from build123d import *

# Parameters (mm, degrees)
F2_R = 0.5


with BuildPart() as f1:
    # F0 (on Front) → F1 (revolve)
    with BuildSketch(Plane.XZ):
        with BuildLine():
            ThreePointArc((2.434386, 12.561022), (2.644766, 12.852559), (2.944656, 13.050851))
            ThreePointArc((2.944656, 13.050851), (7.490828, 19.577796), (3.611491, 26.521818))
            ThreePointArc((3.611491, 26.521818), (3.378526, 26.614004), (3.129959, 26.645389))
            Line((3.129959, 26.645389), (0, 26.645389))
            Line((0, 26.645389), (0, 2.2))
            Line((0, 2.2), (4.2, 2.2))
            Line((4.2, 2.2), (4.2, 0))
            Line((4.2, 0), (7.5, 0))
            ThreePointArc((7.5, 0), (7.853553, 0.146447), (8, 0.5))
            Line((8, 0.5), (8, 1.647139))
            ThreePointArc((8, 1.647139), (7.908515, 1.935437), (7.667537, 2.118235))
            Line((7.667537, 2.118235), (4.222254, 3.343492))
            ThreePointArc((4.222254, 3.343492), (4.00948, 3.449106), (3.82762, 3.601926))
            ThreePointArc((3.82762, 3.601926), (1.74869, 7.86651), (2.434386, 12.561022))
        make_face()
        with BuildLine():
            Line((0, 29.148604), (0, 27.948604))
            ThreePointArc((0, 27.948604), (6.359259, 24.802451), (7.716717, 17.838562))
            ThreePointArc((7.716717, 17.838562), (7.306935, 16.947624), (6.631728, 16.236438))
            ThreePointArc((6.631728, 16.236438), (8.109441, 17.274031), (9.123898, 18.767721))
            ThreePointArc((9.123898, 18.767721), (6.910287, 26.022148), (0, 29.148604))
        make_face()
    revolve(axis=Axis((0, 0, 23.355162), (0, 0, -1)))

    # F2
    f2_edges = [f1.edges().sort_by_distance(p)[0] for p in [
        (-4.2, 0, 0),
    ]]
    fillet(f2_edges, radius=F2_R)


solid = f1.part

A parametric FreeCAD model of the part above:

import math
import FreeCAD as App
import Part
import Sketcher


def edges_at(feature, points):
    """Names of the edges that pass closest to the given points."""
    edges = feature.Shape.Edges
    near = lambda p: min(range(len(edges)), key=lambda i: edges[i].distToShape(Part.Vertex(*p))[0])
    return sorted({f"Edge{near(p) + 1}" for p in points})

doc = App.newDocument("Part")
body = doc.addObject("PartDesign::Body", "Body")
body.AllowCompound = True

# Sketch on XZ plane
sketch1 = doc.addObject("Sketcher::SketchObject", "Sketch")
body.addObject(sketch1)
sketch1.AttachmentSupport = (doc.XZ_Plane, [""])
sketch1.MapMode = "FlatFace"
sketch1.addGeometry([
    Part.ArcOfCircle(Part.Circle(App.Vector(3.337272, 12.131154, 0), App.Vector(0, 0, 1), 0.999995), math.radians(113.117511), math.radians(154.540681)),  # 0
    Part.ArcOfCircle(Part.Circle(App.Vector(0, 19.948605, 0), App.Vector(0, 0, 1), 7.5), math.radians(-66.882329), math.radians(61.214485)),  # 1
    Part.ArcOfCircle(Part.Circle(App.Vector(3.12996, 25.645391, 0), App.Vector(0, 0, 1), 0.999998), math.radians(61.214522), math.radians(90.00008)),  # 2
    Part.LineSegment(App.Vector(3.129959, 26.645389, 0), App.Vector(0, 26.645389, 0)),  # 3
    Part.LineSegment(App.Vector(0, 26.645389, 0), App.Vector(0, 2.2, 0)),  # 4
    Part.LineSegment(App.Vector(0, 2.2, 0), App.Vector(4.2, 2.2, 0)),  # 5
    Part.LineSegment(App.Vector(4.2, 2.2, 0), App.Vector(4.2, 0, 0)),  # 6
    Part.LineSegment(App.Vector(4.2, 0, 0), App.Vector(7.5, 0, 0)),  # 7
    Part.ArcOfCircle(Part.Circle(App.Vector(7.499999, 0.500001, 0), App.Vector(0, 0, 1), 0.500001), math.radians(-89.999847), math.radians(-0.000153)),  # 8
    Part.LineSegment(App.Vector(8, 0.5, 0), App.Vector(8, 1.647139, 0)),  # 9
    Part.ArcOfCircle(Part.Circle(App.Vector(7.500001, 1.64714, 0), App.Vector(0, 0, 1), 0.499999), math.radians(-0.000079), math.radians(70.42303)),  # 10
    Part.LineSegment(App.Vector(7.667537, 2.118235, 0), App.Vector(4.222254, 3.343492, 0)),  # 11
    Part.ArcOfCircle(Part.Circle(App.Vector(4.557323, 4.285674, 0), App.Vector(0, 0, 1), 0.999989), math.radians(-136.8622), math.radians(-109.576979)),  # 12
    Part.ArcOfCircle(Part.Circle(App.Vector(9.698098, 9.102727, 0), App.Vector(0, 0, 1), 8.044956), math.radians(154.54061), math.radians(223.137984)),  # 13
    Part.LineSegment(App.Vector(0, 29.148604, 0), App.Vector(0, 27.948604, 0)),  # 14
    Part.ArcOfCircle(Part.Circle(App.Vector(0.000001, 19.948605, 0), App.Vector(0, 0, 1), 7.999999), math.radians(-15.293009), math.radians(90.000006)),  # 15
    Part.ArcOfCircle(Part.Circle(App.Vector(4.82295, 18.629827, 0), App.Vector(0, 0, 1), 2.999998), math.radians(-52.920226), math.radians(-15.292991)),  # 16
    Part.ArcOfCircle(Part.Circle(App.Vector(4.53582, 20.792433, 0), App.Vector(0, 0, 1), 5.014969), math.radians(-65.296007), math.radians(-23.811792)),  # 17
    Part.ArcOfCircle(Part.Circle(App.Vector(0, 19.948604, 0), App.Vector(0, 0, 1), 9.2), math.radians(-7.374654), math.radians(90.000002)),  # 18
], False)
sketch1.addConstraint([
    Sketcher.Constraint("Coincident", 0, 1, 1, 1),
    Sketcher.Constraint("Tangent", 1, 2, 2, 1),
    Sketcher.Constraint("Tangent", 2, 2, 3, 1),
    Sketcher.Constraint("Coincident", 3, 2, 4, 1),
    Sketcher.Constraint("Coincident", 4, 2, 5, 1),
    Sketcher.Constraint("Coincident", 5, 2, 6, 1),
    Sketcher.Constraint("Coincident", 6, 2, 7, 1),
    Sketcher.Constraint("Coincident", 7, 2, 8, 1),
    Sketcher.Constraint("Coincident", 8, 2, 9, 1),
    Sketcher.Constraint("Tangent", 9, 2, 10, 1),
    Sketcher.Constraint("Tangent", 10, 2, 11, 1),
    Sketcher.Constraint("Tangent", 11, 2, 12, 2),
    Sketcher.Constraint("Coincident", 12, 1, 13, 2),
    Sketcher.Constraint("Tangent", 13, 1, 0, 2),
    Sketcher.Constraint("Coincident", 14, 2, 15, 2),
    Sketcher.Constraint("Tangent", 15, 1, 16, 2),
    Sketcher.Constraint("Coincident", 16, 1, 17, 1),
    Sketcher.Constraint("Coincident", 17, 2, 18, 1),
    Sketcher.Constraint("Coincident", 18, 2, 14, 1),
    Sketcher.Constraint("Horizontal", 3),
    Sketcher.Constraint("Vertical", 4),
    Sketcher.Constraint("Horizontal", 5),
    Sketcher.Constraint("Vertical", 6),
    Sketcher.Constraint("Horizontal", 7),
    Sketcher.Constraint("Vertical", 9),
    Sketcher.Constraint("Vertical", 14),
    Sketcher.Constraint("Coincident", 15, 3, 1, 3),
    Sketcher.Constraint("Coincident", 18, 3, 1, 3),
    Sketcher.Constraint("PointOnObject", 1, 3, -2),
    Sketcher.Constraint("PointOnObject", 3, 2, -2),
    Sketcher.Constraint("PointOnObject", 6, 2, -1),
    Sketcher.Constraint("PointOnObject", 14, 2, -2),
    Sketcher.Constraint("Vertical", 10, 3, 7, 2),
    Sketcher.Constraint("Radius", 2, 0.999998),
    Sketcher.Constraint("Radius", 15, 7.999999),
    Sketcher.Constraint("Radius", 1, 7.5),
    Sketcher.Constraint("Radius", 8, 0.500001),
    Sketcher.Constraint("Radius", 10, 0.499999),
    Sketcher.Constraint("Radius", 18, 9.2),
    Sketcher.Constraint("DistanceX", 5, 1, 5, 2, 4.2),
    Sketcher.Constraint("DistanceX", 7, 1, 7, 2, 3.3),
    Sketcher.Constraint("DistanceY", 6, 2, 6, 1, 2.2),
    Sketcher.Constraint("DistanceY", -1, 1, 8, 2, 0.5),
    Sketcher.Constraint("Radius", 12, 0.999989),
    Sketcher.Constraint("Radius", 17, 5.014969),
    Sketcher.Constraint("Radius", 0, 0.999995),
    Sketcher.Constraint("Radius", 13, 8.044956),
    Sketcher.Constraint("Radius", 16, 2.999998),
    Sketcher.Constraint("DistanceX", 3, 2, 3, 1, 3.129959),
    Sketcher.Constraint("DistanceY", 4, 2, 4, 1, 24.445389),
    Sketcher.Constraint("DistanceY", 9, 1, 9, 2, 1.147139),
    Sketcher.Constraint("DistanceX", -1, 1, 13, 3, 9.698098),
    Sketcher.Constraint("DistanceX", -1, 1, 17, 2, 9.123898),
    Sketcher.Constraint("DistanceY", 13, 3, 16, 3, 9.5271),
    Sketcher.Constraint("Distance", 11, 3.656669),
    Sketcher.Constraint("DistanceX", -1, 1, 16, 3, 4.82295),
    Sketcher.Constraint("DistanceX", -1, 1, 17, 3, 4.53582),
    Sketcher.Constraint("DistanceY", -1, 1, 0, 1, 13.050851),
    Sketcher.Constraint("DistanceX", -1, 1, 12, 1, 3.82762),
])
revolution = doc.addObject("PartDesign::Revolution", "Revolution")
body.addObject(revolution)
revolution.Profile = sketch1
revolution.ReferenceAxis = (sketch1, ["V_Axis"])
revolution.Angle = 360
doc.recompute()

fillet = doc.addObject("PartDesign::Fillet", "Fillet")
body.addObject(fillet)
fillet.Base = (revolution, edges_at(revolution, [(-4.2, 0, 0)]))
fillet.Radius = 0.5

doc.recompute()
